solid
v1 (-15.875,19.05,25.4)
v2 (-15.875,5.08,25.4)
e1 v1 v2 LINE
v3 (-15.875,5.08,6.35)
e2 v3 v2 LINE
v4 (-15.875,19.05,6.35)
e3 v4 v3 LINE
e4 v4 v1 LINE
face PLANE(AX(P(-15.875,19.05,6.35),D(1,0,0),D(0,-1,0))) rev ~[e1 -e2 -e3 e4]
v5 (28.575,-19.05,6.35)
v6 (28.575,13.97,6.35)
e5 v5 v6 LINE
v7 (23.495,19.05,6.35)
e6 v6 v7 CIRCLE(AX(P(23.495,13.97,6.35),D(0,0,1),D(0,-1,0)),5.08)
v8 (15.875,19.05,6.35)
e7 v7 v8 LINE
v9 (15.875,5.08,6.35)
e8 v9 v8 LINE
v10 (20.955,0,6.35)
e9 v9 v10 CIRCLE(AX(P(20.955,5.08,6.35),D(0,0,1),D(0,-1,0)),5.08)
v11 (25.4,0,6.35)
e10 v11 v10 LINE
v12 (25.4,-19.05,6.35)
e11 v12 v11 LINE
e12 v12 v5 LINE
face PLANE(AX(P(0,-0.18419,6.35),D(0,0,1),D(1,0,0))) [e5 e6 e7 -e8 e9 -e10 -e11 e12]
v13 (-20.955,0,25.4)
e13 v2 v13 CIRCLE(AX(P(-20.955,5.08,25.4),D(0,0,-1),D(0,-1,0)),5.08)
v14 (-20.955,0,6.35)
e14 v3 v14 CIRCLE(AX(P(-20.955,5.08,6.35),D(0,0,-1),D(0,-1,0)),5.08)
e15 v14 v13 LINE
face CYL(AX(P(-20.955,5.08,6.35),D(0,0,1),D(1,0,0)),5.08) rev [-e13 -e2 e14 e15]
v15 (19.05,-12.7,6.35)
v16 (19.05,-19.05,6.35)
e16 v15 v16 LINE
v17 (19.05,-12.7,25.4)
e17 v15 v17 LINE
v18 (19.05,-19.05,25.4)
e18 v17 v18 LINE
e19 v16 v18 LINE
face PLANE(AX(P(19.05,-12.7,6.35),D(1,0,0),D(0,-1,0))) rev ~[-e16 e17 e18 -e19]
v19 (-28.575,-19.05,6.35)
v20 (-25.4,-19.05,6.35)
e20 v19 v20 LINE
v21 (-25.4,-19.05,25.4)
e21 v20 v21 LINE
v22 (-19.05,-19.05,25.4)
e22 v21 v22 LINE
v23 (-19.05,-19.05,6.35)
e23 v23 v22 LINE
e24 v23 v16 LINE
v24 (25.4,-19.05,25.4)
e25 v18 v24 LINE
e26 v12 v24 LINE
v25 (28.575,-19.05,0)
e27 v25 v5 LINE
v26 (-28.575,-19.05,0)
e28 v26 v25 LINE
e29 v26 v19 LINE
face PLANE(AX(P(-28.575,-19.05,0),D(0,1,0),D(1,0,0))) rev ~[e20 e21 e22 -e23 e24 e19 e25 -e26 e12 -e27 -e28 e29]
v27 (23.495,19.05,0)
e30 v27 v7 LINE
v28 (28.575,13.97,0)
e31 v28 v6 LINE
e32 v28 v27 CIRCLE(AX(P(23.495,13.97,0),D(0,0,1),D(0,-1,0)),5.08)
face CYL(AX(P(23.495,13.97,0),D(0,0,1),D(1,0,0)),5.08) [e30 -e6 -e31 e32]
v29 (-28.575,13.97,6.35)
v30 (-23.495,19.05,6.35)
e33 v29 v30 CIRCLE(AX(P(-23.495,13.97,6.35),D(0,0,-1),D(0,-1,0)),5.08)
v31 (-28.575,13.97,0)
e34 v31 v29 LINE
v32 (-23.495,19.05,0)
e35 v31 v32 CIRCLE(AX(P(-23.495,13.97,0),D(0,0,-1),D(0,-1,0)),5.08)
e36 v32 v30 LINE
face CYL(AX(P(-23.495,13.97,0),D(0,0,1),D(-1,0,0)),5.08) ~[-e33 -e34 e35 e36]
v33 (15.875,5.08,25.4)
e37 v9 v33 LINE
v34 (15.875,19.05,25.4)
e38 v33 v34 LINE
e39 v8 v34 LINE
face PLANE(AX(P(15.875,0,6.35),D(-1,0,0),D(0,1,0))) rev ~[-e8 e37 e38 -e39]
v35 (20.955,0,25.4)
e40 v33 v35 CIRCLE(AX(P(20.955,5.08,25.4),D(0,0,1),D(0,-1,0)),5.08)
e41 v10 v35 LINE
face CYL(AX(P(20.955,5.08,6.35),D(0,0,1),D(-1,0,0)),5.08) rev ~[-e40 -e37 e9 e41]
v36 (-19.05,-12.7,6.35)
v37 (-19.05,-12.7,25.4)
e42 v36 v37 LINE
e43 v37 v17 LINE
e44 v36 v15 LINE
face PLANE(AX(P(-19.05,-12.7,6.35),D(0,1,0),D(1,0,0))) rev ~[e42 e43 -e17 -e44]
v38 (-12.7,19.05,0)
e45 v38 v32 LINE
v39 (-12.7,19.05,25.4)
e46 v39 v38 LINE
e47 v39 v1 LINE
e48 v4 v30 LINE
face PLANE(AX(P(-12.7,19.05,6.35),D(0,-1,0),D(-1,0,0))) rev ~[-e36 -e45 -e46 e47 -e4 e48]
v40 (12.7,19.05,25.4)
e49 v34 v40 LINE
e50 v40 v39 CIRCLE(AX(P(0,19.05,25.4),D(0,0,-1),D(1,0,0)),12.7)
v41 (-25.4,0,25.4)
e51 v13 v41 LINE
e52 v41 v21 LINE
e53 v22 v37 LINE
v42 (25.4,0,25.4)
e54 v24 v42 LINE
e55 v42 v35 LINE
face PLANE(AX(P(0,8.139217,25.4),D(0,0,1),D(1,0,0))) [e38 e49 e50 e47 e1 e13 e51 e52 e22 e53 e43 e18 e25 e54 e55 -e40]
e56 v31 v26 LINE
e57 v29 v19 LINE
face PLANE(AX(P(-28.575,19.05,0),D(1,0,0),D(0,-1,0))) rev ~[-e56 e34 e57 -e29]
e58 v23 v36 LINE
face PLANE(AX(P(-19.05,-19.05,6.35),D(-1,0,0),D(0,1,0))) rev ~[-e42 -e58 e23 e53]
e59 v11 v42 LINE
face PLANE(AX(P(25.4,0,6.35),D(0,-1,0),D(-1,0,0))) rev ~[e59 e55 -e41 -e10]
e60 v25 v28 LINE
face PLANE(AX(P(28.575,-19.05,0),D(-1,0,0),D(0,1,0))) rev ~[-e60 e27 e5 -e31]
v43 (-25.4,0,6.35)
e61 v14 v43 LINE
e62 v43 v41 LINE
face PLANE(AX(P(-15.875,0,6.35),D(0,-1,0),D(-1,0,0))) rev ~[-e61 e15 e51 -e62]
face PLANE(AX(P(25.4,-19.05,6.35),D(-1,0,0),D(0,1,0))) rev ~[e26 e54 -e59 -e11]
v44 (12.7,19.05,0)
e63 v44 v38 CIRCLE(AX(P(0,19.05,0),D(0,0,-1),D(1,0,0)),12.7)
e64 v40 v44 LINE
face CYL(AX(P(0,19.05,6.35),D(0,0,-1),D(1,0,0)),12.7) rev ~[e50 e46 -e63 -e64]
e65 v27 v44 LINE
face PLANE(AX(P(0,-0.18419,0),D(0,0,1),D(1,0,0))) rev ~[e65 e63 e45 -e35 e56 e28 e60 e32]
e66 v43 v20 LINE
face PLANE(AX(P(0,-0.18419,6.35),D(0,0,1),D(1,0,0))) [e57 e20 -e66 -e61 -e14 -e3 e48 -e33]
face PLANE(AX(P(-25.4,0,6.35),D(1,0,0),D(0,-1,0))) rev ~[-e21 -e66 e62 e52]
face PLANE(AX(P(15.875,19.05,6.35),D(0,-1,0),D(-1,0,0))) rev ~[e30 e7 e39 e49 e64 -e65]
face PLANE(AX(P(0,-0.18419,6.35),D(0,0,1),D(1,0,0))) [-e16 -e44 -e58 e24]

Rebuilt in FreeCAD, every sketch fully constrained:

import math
import FreeCAD as App
import Part
import Sketcher
Q = App.Units.Quantity


def edges_at(feature, points):
    """Names of the edges that pass closest to the given points."""
    edges = feature.Shape.Edges
    near = lambda p: min(range(len(edges)), key=lambda i: edges[i].distToShape(Part.Vertex(*p))[0])
    return sorted({f"Edge{near(p) + 1}" for p in points})

doc = App.newDocument("Part")
params = doc.addObject("Spreadsheet::Sheet", "Params")
for row, (alias, value) in enumerate([
    ("sketch1_radius", "0.5 in"),
    ("sketch1_height", "1.5 in"),
    ("sketch1_width", "2.25 in"),
    ("pad1_length", "0.25 in"),
    ("sketch2_radius", "0.5 in"),
    ("sketch2_width", "1.5 in"),
    ("sketch2_height", "0.75 in"),
    ("sketch2_width2", "0.375 in"),
    ("pad2_length", "0.75 in"),
    ("fillet_radius", "0.2 in"),
], start=1):
    params.set(f"A{row}", alias)
    params.set(f"B{row}", "=" + value)
    params.setAlias(f"B{row}", alias)

body = doc.addObject("PartDesign::Body", "Body")

# Sketch on XY plane
sketch1 = body.newObject("Sketcher::SketchObject", "Sketch")
sketch1.AttachmentSupport = (doc.getObject("XY_Plane"), [""])
sketch1.MapMode = "FlatFace"
sketch1.addGeometry([
    Part.LineSegment(App.Vector(29, -19, 0), App.Vector(29, 19, 0)),  # 0
    Part.LineSegment(App.Vector(29, 19, 0), App.Vector(13, 19, 0)),  # 1
    Part.ArcOfCircle(Part.Circle(App.Vector(0, 19, 0), App.Vector(0, 0, 1), 13), math.radians(180), math.radians(360)),  # 2
    Part.LineSegment(App.Vector(-13, 19, 0), App.Vector(-29, 19, 0)),  # 3
    Part.LineSegment(App.Vector(-29, 19, 0), App.Vector(-29, -19, 0)),  # 4
    Part.LineSegment(App.Vector(-29, -19, 0), App.Vector(29, -19, 0)),  # 5
], False)
sketch1.addConstraint([
    Sketcher.Constraint("Coincident", 0, 2, 1, 1),
    Sketcher.Constraint("Coincident", 1, 2, 2, 2),
    Sketcher.Constraint("Coincident", 2, 1, 3, 1),
    Sketcher.Constraint("Coincident", 3, 2, 4, 1),
    Sketcher.Constraint("Coincident", 4, 2, 5, 1),
    Sketcher.Constraint("Coincident", 5, 2, 0, 1),
    Sketcher.Constraint("Vertical", 0),
    Sketcher.Constraint("Horizontal", 1),
    Sketcher.Constraint("Horizontal", 3),
    Sketcher.Constraint("Vertical", 4),
    Sketcher.Constraint("Horizontal", 5),
    Sketcher.Constraint("Symmetric", 0, 2, 4, 2, -1, 1),
    Sketcher.Constraint("Symmetric", 1, 2, 2, 1, -2),
    Sketcher.Constraint("Horizontal", 2, 3, 0, 2),
    Sketcher.Constraint("Radius", 2, Q("0.5 in")),
    Sketcher.Constraint("DistanceY", 0, 1, 0, 2, Q("1.5 in")),
    Sketcher.Constraint("DistanceX", 5, 1, 5, 2, Q("2.25 in")),
])
sketch1.setExpression("Constraints[14]", "Params.sketch1_radius")
sketch1.setExpression("Constraints[15]", "Params.sketch1_height")
sketch1.setExpression("Constraints[16]", "Params.sketch1_width")
pad1 = body.newObject("PartDesign::Pad", "Pad")
pad1.Profile = sketch1
pad1.setExpression("Length", "Params.pad1_length")

# Sketch on XY plane
sketch2 = body.newObject("Sketcher::SketchObject", "Sketch001")
sketch2.AttachmentSupport = (doc.getObject("XY_Plane"), [""])
sketch2.MapMode = "FlatFace"
sketch2.AttachmentOffset = App.Placement(App.Vector(0, 0, 0.25 * 25.4), App.Rotation())
sketch2.addGeometry([
    Part.LineSegment(App.Vector(-15.9, 19.1, 0), App.Vector(-15.9, 0, 0)),  # 0
    Part.LineSegment(App.Vector(-15.9, 0, 0), App.Vector(-25.4, 0, 0)),  # 1
    Part.LineSegment(App.Vector(-25.4, 0, 0), App.Vector(-25.4, -19.1, 0)),  # 2
    Part.LineSegment(App.Vector(-25.4, -19.1, 0), App.Vector(-19.1, -19.1, 0)),  # 3
    Part.LineSegment(App.Vector(-19.1, -19.1, 0), App.Vector(-19.1, -12.7, 0)),  # 4
    Part.LineSegment(App.Vector(-19.1, -12.7, 0), App.Vector(19.1, -12.7, 0)),  # 5
    Part.LineSegment(App.Vector(19.1, -12.7, 0), App.Vector(19.1, -19.1, 0)),  # 6
    Part.LineSegment(App.Vector(19.1, -19.1, 0), App.Vector(25.4, -19.1, 0)),  # 7
    Part.LineSegment(App.Vector(25.4, -19.1, 0), App.Vector(25.4, 0, 0)),  # 8
    Part.LineSegment(App.Vector(25.4, 0, 0), App.Vector(15.9, 0, 0)),  # 9
    Part.LineSegment(App.Vector(15.9, 0, 0), App.Vector(15.9, 19.1, 0)),  # 10
    Part.LineSegment(App.Vector(15.9, 19.1, 0), App.Vector(12.7, 19.1, 0)),  # 11
    Part.ArcOfCircle(Part.Circle(App.Vector(0, 19.1, 0), App.Vector(0, 0, 1), 12.7), math.radians(180), math.radians(360)),  # 12
    Part.LineSegment(App.Vector(-12.7, 19.1, 0), App.Vector(-15.9, 19.1, 0)),  # 13
], False)
sketch2.addConstraint([
    Sketcher.Constraint("Coincident", 0, 2, 1, 1),
    Sketcher.Constraint("Coincident", 1, 2, 2, 1),
    Sketcher.Constraint("Coincident", 2, 2, 3, 1),
    Sketcher.Constraint("Coincident", 3, 2, 4, 1),
    Sketcher.Constraint("Coincident", 4, 2, 5, 1),
    Sketcher.Constraint("Coincident", 5, 2, 6, 1),
    Sketcher.Constraint("Coincident", 6, 2, 7, 1),
    Sketcher.Constraint("Coincident", 7, 2, 8, 1),
    Sketcher.Constraint("Coincident", 8, 2, 9, 1),
    Sketcher.Constraint("Coincident", 9, 2, 10, 1),
    Sketcher.Constraint("Coincident", 10, 2, 11, 1),
    Sketcher.Constraint("Coincident", 11, 2, 12, 2),
    Sketcher.Constraint("Coincident", 12, 1, 13, 1),
    Sketcher.Constraint("Coincident", 13, 2, 0, 1),
    Sketcher.Constraint("Vertical", 0),
    Sketcher.Constraint("Horizontal", 1),
    Sketcher.Constraint("Vertical", 2),
    Sketcher.Constraint("Horizontal", 3),
    Sketcher.Constraint("Vertical", 4),
    Sketcher.Constraint("Horizontal", 5),
    Sketcher.Constraint("Vertical", 6),
    Sketcher.Constraint("Horizontal", 7),
    Sketcher.Constraint("Vertical", 8),
    Sketcher.Constraint("Horizontal", 9),
    Sketcher.Constraint("Vertical", 10),
    Sketcher.Constraint("Horizontal", 11),
    Sketcher.Constraint("Horizontal", 13),
    Sketcher.Constraint("Symmetric", 1, 2, 8, 2, -1, 1),
    Sketcher.Constraint("Symmetric", 3, 2, 6, 2, -2),
    Sketcher.Constraint("Symmetric", 0, 2, 9, 2, -2),
    Sketcher.Constraint("Symmetric", 11, 2, 12, 1, -2),
    Sketcher.Constraint("Horizontal", 12, 3, 10, 2),
    Sketcher.Constraint("Equal", 0, 2),
    Sketcher.Constraint("Equal", 7, 4),
    Sketcher.Constraint("Radius", 12, Q("0.5 in")),
    Sketcher.Constraint("DistanceX", 5, 1, 5, 2, Q("1.5 in")),
    Sketcher.Constraint("DistanceX", 1, 2, -1, 1, Q("1 in")),
    Sketcher.Constraint("DistanceY", 0, 2, 0, 1, Q("0.75 in")),
    Sketcher.Constraint("DistanceX", 1, 2, 1, 1, Q("0.375 in")),
])
sketch2.setExpression("Constraints[34]", "Params.sketch2_radius")
sketch2.setExpression("Constraints[35]", "Params.sketch2_width")
sketch2.setExpression("Constraints[37]", "Params.sketch2_height")
sketch2.setExpression("Constraints[38]", "Params.sketch2_width2")
pad2 = body.newObject("PartDesign::Pad", "Pad001")
pad2.Profile = sketch2
pad2.setExpression("Length", "Params.pad2_length")
doc.recompute()

fillet = body.newObject("PartDesign::Fillet", "Fillet")
fillet.Base = (pad2, edges_at(pad2, [
    (-28.575, 19.05, 3.175),
    (28.575, 19.05, 3.175),
    (-15.875, 0, 15.875),
    (15.875, 0, 15.875),
]))
fillet.setExpression("Radius", "Params.fillet_radius")

doc.recompute()
